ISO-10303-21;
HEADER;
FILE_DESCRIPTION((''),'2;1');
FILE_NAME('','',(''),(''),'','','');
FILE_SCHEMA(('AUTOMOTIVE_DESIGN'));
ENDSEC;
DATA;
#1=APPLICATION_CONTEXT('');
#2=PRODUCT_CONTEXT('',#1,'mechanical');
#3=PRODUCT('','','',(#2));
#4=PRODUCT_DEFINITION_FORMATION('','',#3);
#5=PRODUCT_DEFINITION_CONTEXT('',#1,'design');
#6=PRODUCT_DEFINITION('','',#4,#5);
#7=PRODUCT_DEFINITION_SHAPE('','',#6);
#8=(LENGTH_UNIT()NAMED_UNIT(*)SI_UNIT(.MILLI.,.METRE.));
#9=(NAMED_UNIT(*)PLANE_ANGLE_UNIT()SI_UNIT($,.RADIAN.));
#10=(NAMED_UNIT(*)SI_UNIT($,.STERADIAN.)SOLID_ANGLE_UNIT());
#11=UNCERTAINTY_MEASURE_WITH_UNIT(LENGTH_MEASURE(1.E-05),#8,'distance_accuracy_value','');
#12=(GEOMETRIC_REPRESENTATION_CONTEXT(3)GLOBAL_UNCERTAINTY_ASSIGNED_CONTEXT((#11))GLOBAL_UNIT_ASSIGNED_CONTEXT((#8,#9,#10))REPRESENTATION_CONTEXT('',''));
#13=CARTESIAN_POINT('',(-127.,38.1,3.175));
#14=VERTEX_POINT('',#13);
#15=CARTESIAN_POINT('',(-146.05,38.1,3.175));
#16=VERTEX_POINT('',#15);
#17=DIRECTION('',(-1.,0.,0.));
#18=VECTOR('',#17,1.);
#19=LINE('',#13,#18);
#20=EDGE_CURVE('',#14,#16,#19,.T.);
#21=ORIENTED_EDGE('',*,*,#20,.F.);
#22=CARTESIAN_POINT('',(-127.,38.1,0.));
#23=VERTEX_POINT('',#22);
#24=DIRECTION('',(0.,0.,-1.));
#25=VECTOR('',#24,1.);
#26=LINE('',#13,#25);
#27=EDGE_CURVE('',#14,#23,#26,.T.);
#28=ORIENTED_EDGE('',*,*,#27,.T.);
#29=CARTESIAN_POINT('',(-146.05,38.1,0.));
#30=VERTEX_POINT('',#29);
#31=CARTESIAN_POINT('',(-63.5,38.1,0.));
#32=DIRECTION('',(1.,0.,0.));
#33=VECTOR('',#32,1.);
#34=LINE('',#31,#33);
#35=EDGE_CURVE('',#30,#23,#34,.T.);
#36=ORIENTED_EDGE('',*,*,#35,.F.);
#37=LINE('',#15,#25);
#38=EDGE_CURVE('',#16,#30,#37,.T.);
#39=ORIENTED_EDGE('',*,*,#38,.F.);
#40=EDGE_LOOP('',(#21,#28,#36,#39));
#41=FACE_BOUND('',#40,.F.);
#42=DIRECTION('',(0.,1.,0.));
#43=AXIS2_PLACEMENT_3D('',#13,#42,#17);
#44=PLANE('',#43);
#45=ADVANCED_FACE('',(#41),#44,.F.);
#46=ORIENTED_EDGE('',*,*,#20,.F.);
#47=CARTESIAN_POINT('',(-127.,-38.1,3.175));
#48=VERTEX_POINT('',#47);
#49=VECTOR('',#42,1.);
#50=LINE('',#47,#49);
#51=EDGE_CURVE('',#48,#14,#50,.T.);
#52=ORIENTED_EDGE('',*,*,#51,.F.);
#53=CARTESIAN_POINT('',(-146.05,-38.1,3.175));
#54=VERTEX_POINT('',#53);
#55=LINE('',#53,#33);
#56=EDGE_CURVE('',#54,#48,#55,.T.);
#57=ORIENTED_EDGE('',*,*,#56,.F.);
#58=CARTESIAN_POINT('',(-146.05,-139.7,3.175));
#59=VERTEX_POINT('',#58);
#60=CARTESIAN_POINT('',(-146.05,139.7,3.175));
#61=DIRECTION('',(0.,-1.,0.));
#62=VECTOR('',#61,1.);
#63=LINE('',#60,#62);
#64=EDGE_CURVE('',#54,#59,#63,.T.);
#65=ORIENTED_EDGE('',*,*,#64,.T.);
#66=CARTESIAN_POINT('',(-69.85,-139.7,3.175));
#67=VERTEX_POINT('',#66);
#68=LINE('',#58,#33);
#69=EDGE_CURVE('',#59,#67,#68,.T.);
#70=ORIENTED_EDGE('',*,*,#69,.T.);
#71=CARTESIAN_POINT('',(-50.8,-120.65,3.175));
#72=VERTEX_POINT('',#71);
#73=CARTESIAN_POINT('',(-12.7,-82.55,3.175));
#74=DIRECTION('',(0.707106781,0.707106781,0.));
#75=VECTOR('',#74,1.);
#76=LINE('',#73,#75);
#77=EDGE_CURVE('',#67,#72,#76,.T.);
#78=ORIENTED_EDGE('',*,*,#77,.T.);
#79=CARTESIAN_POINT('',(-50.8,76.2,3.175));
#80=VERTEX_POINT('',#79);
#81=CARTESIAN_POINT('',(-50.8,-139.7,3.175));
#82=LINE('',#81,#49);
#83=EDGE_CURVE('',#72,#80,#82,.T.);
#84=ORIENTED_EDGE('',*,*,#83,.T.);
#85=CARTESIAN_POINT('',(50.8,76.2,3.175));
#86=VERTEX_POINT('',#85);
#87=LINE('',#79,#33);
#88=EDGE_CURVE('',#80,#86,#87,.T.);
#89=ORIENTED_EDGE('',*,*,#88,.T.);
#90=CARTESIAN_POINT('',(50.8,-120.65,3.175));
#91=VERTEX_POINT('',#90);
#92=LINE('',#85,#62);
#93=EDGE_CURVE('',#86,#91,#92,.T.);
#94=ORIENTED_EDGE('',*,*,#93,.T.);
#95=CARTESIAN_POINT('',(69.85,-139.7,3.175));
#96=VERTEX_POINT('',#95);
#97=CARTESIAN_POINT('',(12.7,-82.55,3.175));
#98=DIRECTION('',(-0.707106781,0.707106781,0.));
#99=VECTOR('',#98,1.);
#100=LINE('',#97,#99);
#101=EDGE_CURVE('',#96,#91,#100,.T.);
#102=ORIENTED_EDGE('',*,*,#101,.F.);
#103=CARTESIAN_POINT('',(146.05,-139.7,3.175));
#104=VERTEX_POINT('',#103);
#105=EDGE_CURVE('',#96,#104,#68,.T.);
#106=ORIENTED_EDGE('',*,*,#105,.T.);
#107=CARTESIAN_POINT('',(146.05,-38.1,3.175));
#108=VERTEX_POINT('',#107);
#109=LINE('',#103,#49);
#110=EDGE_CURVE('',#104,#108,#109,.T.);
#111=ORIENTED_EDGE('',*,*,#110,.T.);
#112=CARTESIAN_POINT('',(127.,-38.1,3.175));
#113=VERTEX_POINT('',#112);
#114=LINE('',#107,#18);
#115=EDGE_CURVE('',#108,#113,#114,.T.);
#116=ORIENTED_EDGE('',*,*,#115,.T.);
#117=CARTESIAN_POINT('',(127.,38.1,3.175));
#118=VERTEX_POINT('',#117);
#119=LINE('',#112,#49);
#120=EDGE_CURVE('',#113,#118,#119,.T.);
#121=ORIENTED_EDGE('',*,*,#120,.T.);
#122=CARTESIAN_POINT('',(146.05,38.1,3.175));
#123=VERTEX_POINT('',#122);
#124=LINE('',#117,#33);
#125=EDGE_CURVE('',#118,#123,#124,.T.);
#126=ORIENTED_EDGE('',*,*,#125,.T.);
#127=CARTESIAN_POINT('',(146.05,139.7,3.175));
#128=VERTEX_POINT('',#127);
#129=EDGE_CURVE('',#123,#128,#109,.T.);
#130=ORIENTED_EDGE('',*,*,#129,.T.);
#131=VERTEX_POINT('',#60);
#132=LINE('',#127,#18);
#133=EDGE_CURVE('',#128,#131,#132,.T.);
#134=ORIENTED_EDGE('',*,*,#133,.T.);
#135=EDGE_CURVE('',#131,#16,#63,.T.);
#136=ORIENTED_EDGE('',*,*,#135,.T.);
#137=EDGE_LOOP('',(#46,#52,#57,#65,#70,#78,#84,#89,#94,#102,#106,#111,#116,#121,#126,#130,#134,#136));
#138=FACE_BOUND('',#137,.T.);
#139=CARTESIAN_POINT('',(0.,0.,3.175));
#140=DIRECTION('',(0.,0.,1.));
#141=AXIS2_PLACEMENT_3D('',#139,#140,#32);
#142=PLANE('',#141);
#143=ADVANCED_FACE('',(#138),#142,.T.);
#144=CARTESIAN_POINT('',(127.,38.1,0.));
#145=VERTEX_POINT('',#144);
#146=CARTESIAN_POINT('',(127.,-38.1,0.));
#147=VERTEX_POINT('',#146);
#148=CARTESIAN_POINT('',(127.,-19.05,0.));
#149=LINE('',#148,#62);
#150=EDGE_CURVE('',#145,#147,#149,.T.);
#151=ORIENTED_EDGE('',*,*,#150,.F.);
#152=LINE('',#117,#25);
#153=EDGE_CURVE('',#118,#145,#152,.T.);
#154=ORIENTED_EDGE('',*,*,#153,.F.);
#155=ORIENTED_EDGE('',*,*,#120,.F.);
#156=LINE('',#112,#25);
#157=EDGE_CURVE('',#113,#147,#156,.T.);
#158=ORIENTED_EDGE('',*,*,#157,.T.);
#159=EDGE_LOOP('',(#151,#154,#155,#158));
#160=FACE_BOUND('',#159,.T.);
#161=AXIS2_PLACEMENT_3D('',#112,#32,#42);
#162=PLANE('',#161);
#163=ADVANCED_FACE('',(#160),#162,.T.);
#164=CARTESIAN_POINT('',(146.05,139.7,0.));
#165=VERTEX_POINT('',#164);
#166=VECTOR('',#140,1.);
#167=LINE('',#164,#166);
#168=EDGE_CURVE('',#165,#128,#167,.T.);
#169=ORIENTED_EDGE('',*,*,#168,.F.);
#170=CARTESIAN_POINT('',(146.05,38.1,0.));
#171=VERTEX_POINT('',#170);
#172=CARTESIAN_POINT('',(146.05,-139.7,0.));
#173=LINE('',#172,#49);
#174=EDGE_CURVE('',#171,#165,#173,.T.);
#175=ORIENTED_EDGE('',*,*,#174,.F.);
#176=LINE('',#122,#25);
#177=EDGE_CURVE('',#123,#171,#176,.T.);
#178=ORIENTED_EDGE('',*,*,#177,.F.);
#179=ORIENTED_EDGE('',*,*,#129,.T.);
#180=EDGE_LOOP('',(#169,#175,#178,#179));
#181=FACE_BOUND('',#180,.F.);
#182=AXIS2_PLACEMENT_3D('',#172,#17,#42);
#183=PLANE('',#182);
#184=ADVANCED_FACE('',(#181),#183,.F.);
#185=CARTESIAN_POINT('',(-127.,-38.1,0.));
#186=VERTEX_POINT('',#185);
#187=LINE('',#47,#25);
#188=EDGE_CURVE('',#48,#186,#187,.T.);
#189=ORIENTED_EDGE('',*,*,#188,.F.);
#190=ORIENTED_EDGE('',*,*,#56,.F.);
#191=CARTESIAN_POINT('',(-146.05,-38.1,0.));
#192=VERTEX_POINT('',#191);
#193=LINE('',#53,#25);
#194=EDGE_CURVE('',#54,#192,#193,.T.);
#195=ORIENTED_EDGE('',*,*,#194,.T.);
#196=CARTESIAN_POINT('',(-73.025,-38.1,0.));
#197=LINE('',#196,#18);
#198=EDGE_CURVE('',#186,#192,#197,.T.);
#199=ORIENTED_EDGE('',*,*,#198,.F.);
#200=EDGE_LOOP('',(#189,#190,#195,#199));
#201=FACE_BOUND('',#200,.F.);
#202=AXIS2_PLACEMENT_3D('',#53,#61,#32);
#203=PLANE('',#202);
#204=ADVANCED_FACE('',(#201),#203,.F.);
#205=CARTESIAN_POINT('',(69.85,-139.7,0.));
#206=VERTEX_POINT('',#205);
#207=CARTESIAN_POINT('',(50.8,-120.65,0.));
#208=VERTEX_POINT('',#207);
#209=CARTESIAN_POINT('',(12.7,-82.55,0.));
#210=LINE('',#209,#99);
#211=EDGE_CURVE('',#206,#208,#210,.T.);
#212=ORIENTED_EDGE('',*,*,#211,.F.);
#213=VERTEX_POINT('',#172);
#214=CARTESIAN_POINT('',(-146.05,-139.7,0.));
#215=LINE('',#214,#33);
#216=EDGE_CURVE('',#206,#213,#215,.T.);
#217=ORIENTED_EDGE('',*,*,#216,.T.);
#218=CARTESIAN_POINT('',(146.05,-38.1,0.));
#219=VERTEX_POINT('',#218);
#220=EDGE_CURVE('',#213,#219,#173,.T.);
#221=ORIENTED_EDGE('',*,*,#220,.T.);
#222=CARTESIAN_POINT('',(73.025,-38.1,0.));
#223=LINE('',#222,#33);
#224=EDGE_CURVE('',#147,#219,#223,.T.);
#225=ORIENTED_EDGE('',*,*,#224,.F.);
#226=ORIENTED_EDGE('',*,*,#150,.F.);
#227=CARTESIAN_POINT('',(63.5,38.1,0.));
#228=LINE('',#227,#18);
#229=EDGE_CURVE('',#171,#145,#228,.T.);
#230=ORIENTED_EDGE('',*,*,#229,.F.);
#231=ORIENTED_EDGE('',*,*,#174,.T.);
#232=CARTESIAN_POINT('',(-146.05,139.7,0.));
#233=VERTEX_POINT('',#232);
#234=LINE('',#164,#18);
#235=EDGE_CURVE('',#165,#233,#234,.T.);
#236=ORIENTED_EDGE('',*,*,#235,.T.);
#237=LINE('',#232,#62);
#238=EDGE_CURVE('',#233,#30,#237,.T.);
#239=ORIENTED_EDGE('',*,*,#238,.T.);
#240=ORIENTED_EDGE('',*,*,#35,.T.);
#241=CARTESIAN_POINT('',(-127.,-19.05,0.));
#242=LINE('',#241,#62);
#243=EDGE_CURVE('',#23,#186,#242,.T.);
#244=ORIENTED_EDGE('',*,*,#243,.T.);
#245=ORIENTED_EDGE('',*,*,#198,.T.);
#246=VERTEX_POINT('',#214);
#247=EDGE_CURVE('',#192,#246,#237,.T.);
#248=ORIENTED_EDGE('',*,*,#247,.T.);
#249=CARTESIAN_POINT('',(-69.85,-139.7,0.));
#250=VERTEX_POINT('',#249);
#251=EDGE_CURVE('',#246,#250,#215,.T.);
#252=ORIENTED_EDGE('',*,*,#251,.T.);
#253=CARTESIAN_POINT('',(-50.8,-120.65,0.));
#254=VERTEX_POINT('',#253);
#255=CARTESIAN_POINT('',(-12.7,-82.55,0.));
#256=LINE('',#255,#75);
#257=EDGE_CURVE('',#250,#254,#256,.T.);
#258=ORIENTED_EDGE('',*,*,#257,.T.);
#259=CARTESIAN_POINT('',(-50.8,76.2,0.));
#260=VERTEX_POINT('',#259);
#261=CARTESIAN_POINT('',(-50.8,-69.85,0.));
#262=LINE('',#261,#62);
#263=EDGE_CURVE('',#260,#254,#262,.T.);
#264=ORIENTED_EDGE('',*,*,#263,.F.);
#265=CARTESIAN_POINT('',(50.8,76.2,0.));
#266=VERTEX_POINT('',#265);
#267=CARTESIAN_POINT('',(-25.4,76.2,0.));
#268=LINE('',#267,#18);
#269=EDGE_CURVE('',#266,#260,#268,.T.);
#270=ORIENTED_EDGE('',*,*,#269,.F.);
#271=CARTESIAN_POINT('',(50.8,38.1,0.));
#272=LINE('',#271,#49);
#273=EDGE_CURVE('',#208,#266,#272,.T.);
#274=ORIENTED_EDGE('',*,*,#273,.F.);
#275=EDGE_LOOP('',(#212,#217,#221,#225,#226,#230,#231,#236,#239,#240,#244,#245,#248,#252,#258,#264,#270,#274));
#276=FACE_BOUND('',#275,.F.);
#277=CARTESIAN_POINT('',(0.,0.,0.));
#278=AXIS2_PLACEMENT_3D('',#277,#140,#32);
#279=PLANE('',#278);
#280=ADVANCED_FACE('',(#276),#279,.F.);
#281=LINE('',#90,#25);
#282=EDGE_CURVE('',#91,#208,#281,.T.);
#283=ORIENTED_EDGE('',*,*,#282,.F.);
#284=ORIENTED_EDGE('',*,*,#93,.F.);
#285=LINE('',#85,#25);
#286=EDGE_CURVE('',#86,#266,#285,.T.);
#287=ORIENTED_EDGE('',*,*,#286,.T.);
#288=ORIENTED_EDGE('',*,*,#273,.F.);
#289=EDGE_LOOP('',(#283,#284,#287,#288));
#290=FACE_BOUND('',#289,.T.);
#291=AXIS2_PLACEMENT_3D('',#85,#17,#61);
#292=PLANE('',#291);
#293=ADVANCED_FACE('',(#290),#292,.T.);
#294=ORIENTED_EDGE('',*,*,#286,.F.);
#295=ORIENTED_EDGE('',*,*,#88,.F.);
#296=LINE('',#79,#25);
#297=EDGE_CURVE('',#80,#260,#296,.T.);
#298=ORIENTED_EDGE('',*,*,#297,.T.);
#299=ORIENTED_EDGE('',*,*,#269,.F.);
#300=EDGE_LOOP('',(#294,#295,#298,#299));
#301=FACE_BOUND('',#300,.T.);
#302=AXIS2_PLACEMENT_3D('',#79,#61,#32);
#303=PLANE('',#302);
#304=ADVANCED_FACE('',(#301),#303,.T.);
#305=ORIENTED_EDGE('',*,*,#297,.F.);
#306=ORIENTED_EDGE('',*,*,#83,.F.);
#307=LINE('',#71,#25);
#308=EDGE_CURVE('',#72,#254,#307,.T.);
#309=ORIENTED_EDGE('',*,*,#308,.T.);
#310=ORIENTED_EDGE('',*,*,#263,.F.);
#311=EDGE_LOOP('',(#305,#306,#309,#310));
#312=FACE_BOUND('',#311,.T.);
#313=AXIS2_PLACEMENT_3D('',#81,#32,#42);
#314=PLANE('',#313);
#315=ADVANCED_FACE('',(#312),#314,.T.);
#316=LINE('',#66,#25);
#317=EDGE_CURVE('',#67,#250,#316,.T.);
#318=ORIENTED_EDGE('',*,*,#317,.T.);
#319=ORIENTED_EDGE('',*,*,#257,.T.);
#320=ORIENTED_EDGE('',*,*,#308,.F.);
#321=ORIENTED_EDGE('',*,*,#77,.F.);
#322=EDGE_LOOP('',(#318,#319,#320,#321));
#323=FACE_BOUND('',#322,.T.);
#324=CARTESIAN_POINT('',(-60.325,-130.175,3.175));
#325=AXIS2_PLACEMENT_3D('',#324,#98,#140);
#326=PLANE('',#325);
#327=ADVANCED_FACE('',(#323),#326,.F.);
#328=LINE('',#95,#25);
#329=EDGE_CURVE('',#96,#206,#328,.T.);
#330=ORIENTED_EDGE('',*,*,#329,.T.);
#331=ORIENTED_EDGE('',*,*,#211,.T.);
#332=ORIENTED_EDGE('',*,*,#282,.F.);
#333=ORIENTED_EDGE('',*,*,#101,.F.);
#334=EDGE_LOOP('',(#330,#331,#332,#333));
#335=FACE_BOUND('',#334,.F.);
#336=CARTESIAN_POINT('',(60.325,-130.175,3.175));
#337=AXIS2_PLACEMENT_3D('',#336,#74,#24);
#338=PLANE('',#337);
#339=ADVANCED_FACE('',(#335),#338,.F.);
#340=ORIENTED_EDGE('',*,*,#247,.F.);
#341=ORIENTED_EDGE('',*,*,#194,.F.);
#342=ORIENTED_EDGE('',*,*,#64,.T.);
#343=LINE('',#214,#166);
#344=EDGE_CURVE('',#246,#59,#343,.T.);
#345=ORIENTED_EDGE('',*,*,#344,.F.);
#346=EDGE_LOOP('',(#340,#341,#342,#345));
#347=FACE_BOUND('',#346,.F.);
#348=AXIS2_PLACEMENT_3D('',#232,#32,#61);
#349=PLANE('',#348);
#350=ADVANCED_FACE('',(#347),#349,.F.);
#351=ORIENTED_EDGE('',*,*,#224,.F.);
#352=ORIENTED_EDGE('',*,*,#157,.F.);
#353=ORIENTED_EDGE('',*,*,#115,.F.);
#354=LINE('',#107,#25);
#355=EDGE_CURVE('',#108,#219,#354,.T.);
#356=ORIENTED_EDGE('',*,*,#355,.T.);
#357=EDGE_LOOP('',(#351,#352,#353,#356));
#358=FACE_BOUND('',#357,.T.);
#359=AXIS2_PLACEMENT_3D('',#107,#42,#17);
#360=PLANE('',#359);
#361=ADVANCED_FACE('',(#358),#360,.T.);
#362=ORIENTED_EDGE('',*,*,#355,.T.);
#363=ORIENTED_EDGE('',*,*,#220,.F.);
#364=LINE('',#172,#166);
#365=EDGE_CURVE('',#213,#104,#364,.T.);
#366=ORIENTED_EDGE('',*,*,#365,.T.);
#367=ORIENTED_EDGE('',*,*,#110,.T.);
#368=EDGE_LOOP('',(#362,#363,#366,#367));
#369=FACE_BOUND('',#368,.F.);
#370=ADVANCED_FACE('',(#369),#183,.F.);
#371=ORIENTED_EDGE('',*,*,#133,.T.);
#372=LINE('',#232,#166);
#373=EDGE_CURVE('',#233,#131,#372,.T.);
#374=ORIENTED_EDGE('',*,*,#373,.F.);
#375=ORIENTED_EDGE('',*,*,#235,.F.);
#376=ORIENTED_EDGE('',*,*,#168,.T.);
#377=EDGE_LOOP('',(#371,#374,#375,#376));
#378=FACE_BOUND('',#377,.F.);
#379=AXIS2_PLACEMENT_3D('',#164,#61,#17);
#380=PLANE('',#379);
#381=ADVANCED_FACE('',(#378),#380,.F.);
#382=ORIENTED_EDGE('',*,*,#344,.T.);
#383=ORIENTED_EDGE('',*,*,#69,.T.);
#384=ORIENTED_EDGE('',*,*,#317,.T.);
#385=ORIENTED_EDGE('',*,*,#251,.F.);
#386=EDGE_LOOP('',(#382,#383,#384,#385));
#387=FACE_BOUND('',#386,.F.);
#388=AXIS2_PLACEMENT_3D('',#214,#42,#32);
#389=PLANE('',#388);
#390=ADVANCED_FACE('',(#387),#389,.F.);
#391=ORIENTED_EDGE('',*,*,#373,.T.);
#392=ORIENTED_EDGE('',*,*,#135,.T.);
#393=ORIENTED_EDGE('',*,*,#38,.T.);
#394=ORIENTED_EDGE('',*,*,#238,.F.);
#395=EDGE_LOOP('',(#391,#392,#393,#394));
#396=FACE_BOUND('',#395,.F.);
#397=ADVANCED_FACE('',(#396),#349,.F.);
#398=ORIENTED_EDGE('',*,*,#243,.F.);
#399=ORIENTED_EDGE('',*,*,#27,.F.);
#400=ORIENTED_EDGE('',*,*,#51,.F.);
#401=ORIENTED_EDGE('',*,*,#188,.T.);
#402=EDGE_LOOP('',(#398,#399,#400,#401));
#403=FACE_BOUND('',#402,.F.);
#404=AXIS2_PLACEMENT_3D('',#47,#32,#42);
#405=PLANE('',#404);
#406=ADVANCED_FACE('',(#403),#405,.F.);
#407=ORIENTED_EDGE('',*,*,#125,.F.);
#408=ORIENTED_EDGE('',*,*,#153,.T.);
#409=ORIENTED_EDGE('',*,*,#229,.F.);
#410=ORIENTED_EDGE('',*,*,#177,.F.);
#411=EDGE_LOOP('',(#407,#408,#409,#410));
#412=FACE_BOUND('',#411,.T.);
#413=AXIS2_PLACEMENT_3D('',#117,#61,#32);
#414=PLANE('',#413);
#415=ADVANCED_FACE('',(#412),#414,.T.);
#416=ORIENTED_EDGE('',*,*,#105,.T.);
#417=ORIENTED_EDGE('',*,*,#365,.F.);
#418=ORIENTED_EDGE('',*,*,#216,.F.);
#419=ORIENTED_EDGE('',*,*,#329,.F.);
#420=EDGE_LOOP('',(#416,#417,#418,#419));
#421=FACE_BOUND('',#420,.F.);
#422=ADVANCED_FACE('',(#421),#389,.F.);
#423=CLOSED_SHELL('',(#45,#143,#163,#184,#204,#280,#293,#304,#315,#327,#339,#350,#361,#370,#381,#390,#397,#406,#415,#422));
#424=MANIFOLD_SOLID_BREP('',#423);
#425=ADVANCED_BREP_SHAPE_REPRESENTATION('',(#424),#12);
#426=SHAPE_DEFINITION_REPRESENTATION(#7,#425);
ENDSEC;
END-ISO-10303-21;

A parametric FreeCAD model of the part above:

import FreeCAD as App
import Part
import Sketcher

V = App.Vector
Q = App.Units.Quantity


def edges_at(feature, points):
    """Names of the edges that pass closest to the given points."""
    edges = feature.Shape.Edges
    near = lambda p: min(range(len(edges)), key=lambda i: edges[i].distToShape(Part.Vertex(*p))[0])
    return sorted({f"Edge{near(p) + 1}" for p in points})


def add_polygon(sketch, points):
    """Adds a closed chain of lines whose ends are joined by coincident constraints."""
    first, n = sketch.GeometryCount, len(points)
    for a, b in zip(points, points[1:] + points[:1]):
        sketch.addGeometry(Part.LineSegment(App.Vector(*a, 0), App.Vector(*b, 0)), False)
    for i in range(n):
        sketch.addConstraint(Sketcher.Constraint("Coincident", first + i, 2, first + (i + 1) % n, 1))

doc = App.newDocument("Part")
body = doc.addObject("PartDesign::Body", "Body")

# Sketch on XY plane
sketch1 = doc.addObject("Sketcher::SketchObject", "Sketch")
body.addObject(sketch1)
sketch1.AttachmentSupport = (doc.XY_Plane, [""])
sketch1.MapMode = "FlatFace"
add_polygon(sketch1, [(146, 140), (-146, 140), (-146, -140), (146, -140)])  # lines 0-3
sketch1.addConstraint([
    Sketcher.Constraint("Horizontal", 0),
    Sketcher.Constraint("Vertical", 1),
    Sketcher.Constraint("Horizontal", 2),
    Sketcher.Constraint("Vertical", 3),
    Sketcher.Constraint("Symmetric", 0, 2, 2, 2, -1, 1),
    Sketcher.Constraint("DistanceY", 1, 2, 1, 1, Q("11 in")),
    Sketcher.Constraint("DistanceX", 0, 2, -1, 1, Q("5.75 in")),
])
pad1 = doc.addObject("PartDesign::Pad", "Pad")
body.addObject(pad1)
pad1.Profile = sketch1
pad1.Length = Q("0.125 in")

# Sketch on XY plane
sketch2 = doc.addObject("Sketcher::SketchObject", "Sketch001")
body.addObject(sketch2)
sketch2.AttachmentSupport = (doc.XY_Plane, [""])
sketch2.MapMode = "FlatFace"
sketch2.AttachmentOffset = App.Placement(V(0, 0, 0.125 * 25.4), App.Rotation())
add_polygon(sketch2, [(-51, 76), (-51, -140), (51, -140), (51, 76)])  # lines 0-3
sketch2.addConstraint([
    Sketcher.Constraint("Vertical", 0),
    Sketcher.Constraint("Horizontal", 1),
    Sketcher.Constraint("Vertical", 2),
    Sketcher.Constraint("Horizontal", 3),
    Sketcher.Constraint("DistanceX", 0, 2, -1, 1, Q("2 in")),
    Sketcher.Constraint("DistanceX", -1, 1, 1, 2, Q("2 in")),
    Sketcher.Constraint("DistanceY", 0, 2, 0, 1, Q("8.5 in")),
    Sketcher.Constraint("DistanceY", -1, 1, 2, 2, Q("3 in")),
])
pocket1 = doc.addObject("PartDesign::Pocket", "Pocket")
body.addObject(pocket1)
pocket1.Profile = sketch2
pocket1.Type = "UpToFirst"
doc.recompute()

chamfer = doc.addObject("PartDesign::Chamfer", "Chamfer")
body.addObject(chamfer)
chamfer.Base = (pocket1, edges_at(pocket1, [(-50.8, -139.7, 1.587), (50.8, -139.7, 1.587)]))
chamfer.Size = Q("0.75 in")

# Sketch on XY plane
sketch3 = doc.addObject("Sketcher::SketchObject", "Sketch002")
body.addObject(sketch3)
sketch3.AttachmentSupport = (doc.XY_Plane, [""])
sketch3.MapMode = "FlatFace"
sketch3.AttachmentOffset = App.Placement(V(0, 0, 0.125 * 25.4), App.Rotation())
add_polygon(sketch3, [(-127, 38), (-146, 38), (-146, -38), (-127, -38)])  # lines 0-3
sketch3.addConstraint([
    Sketcher.Constraint("Horizontal", 0),
    Sketcher.Constraint("Vertical", 1),
    Sketcher.Constraint("Horizontal", 2),
    Sketcher.Constraint("Vertical", 3),
    Sketcher.Constraint("DistanceX", 2, 2, -1, 1, Q("5 in")),
    Sketcher.Constraint("DistanceY", 1, 2, 1, 1, Q("3 in")),
    Sketcher.Constraint("DistanceX", 0, 2, 0, 1, Q("0.75 in")),
    Sketcher.Constraint("DistanceY", -1, 1, 0, 2, Q("1.5 in")),
])
pocket2 = doc.addObject("PartDesign::Pocket", "Pocket001")
body.addObject(pocket2)
pocket2.Profile = sketch3
pocket2.Type = "UpToFirst"

# Sketch on XY plane
sketch4 = doc.addObject("Sketcher::SketchObject", "Sketch003")
body.addObject(sketch4)
sketch4.AttachmentSupport = (doc.XY_Plane, [""])
sketch4.MapMode = "FlatFace"
sketch4.AttachmentOffset = App.Placement(V(0, 0, 0.125 * 25.4), App.Rotation())
add_polygon(sketch4, [(146, -38), (146, 38), (127, 38), (127, -38)])  # lines 0-3
sketch4.addConstraint([
    Sketcher.Constraint("Vertical", 0),
    Sketcher.Constraint("Horizontal", 1),
    Sketcher.Constraint("Vertical", 2),
    Sketcher.Constraint("Horizontal", 3),
    Sketcher.Constraint("DistanceX", -1, 1, 1, 2, Q("5 in")),
    Sketcher.Constraint("DistanceY", 0, 1, 0, 2, Q("3 in")),
    Sketcher.Constraint("DistanceX", -1, 1, 0, 2, Q("5.75 in")),
    Sketcher.Constraint("DistanceY", -1, 1, 0, 2, Q("1.5 in")),
])
pocket3 = doc.addObject("PartDesign::Pocket", "Pocket002")
body.addObject(pocket3)
pocket3.Profile = sketch4
pocket3.Type = "UpToFirst"

doc.recompute()
